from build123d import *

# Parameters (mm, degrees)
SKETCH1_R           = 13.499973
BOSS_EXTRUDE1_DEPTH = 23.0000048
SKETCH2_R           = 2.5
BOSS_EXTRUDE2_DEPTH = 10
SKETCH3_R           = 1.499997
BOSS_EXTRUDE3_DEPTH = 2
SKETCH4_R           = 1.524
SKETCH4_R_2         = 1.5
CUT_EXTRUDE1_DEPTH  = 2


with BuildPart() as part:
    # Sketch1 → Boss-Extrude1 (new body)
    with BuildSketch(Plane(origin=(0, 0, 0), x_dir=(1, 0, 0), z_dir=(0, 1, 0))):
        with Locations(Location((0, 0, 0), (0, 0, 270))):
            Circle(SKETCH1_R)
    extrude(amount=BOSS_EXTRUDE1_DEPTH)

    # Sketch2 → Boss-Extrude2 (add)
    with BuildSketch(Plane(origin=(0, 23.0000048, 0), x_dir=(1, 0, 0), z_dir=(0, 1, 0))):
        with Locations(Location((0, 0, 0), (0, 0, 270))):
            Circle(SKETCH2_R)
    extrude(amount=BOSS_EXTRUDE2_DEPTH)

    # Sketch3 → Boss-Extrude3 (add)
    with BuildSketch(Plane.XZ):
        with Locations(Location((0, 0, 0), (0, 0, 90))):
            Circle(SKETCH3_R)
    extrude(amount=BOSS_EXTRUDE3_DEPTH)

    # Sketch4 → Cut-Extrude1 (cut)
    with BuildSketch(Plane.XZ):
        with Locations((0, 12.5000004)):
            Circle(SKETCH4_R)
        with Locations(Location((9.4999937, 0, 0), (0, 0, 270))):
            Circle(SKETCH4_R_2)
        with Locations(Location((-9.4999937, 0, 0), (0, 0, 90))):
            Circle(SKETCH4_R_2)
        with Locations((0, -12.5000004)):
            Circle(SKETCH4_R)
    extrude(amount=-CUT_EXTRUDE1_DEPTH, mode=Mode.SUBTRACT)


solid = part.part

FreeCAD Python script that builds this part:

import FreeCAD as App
import Part
import Sketcher

V = App.Vector

doc = App.newDocument("Part")
params = doc.addObject("Spreadsheet::Sheet", "Params")
for row, (alias, value) in enumerate([
    ("pad1_length", "23.000005 mm"),
    ("sketch2_diameter", "5 mm"),
    ("pad2_length", "10 mm"),
    ("pad3_length", "2 mm"),
    ("sketch4_diameter", "3 mm"),
    ("pocket1_length", "2 mm"),
], start=1):
    params.set(f"A{row}", alias)
    params.set(f"B{row}", "=" + value)
    params.setAlias(f"B{row}", alias)

body = doc.addObject("PartDesign::Body", "Body")

sketch1 = body.newObject("Sketcher::SketchObject", "Sketch")
sketch1.AttachmentSupport = (doc.getObject("XZ_Plane"), [""])
sketch1.MapMode = "FlatFace"
sketch1.addGeometry(Part.Circle(V(0, 0, 0), V(0, 0, 1), 13.499973), False)
sketch1.addConstraint(Sketcher.Constraint("Coincident", 0, 3, -1, 1))
sketch1.addConstraint(Sketcher.Constraint("Diameter", 0, 26.999946))
pad1 = body.newObject("PartDesign::Pad", "Pad")
pad1.Profile = sketch1
pad1.setExpression("Length", "Params.pad1_length")
pad1.Reversed = True

sketch2 = body.newObject("Sketcher::SketchObject", "Sketch001")
sketch2.AttachmentSupport = (doc.getObject("XZ_Plane"), [""])
sketch2.MapMode = "FlatFace"
sketch2.AttachmentOffset = App.Placement(V(0, 0, -23.000005), App.Rotation())
sketch2.addGeometry(Part.Circle(V(0, 0, 0), V(0, 0, 1), 2.5), False)
sketch2.addConstraint(Sketcher.Constraint("Coincident", 0, 3, -1, 1))
sketch2.addConstraint(Sketcher.Constraint("Diameter", 0, 5.0))
sketch2.setExpression("Constraints[1]", "Params.sketch2_diameter")
pad2 = body.newObject("PartDesign::Pad", "Pad001")
pad2.Profile = sketch2
pad2.setExpression("Length", "Params.pad2_length")
pad2.Reversed = True

sketch3 = body.newObject("Sketcher::SketchObject", "Sketch002")
sketch3.AttachmentSupport = (doc.getObject("XZ_Plane"), [""])
sketch3.MapMode = "FlatFace"
sketch3.addGeometry(Part.Circle(V(0, 0, 0), V(0, 0, 1), 1.499997), False)
sketch3.addConstraint(Sketcher.Constraint("Coincident", 0, 3, -1, 1))
sketch3.addConstraint(Sketcher.Constraint("Diameter", 0, 2.999994))
pad3 = body.newObject("PartDesign::Pad", "Pad002")
pad3.Profile = sketch3
pad3.setExpression("Length", "Params.pad3_length")

sketch4 = body.newObject("Sketcher::SketchObject", "Sketch003")
sketch4.AttachmentSupport = (doc.getObject("XZ_Plane"), [""])
sketch4.MapMode = "FlatFace"
sketch4.addGeometry(Part.Circle(V(0, 12.5, 0), V(0, 0, 1), 1.524), False)
sketch4.addGeometry(Part.Circle(V(9.499994, 0, 0), V(0, 0, 1), 1.5), False)
sketch4.addGeometry(Part.Circle(V(-9.499994, 0, 0), V(0, 0, 1), 1.5), False)
sketch4.addGeometry(Part.Circle(V(0, -12.5, 0), V(0, 0, 1), 1.524), False)
sketch4.addConstraint(Sketcher.Constraint("Equal", 1, 2))
sketch4.addConstraint(Sketcher.Constraint("Equal", 0, 3))
sketch4.addConstraint(Sketcher.Constraint("Symmetric", 1, 3, 2, 3, -1, 1))
sketch4.addConstraint(Sketcher.Constraint("Symmetric", 0, 3, 3, 3, -1, 1))
sketch4.addConstraint(Sketcher.Constraint("PointOnObject", 0, 3, -2))
sketch4.addConstraint(Sketcher.Constraint("PointOnObject", 1, 3, -1))
sketch4.addConstraint(Sketcher.Constraint("Diameter", 1, 3.0))
sketch4.addConstraint(Sketcher.Constraint("Diameter", 0, 3.048))
sketch4.addConstraint(Sketcher.Constraint("DistanceY", 3, 3, 0, 3, 25.000001))
sketch4.addConstraint(Sketcher.Constraint("DistanceX", -1, 1, 1, 3, 9.499994))
sketch4.setExpression("Constraints[6]", "Params.sketch4_diameter")
pocket1 = body.newObject("PartDesign::Pocket", "Pocket")
pocket1.Profile = sketch4
pocket1.setExpression("Length", "Params.pocket1_length")

doc.recompute()
